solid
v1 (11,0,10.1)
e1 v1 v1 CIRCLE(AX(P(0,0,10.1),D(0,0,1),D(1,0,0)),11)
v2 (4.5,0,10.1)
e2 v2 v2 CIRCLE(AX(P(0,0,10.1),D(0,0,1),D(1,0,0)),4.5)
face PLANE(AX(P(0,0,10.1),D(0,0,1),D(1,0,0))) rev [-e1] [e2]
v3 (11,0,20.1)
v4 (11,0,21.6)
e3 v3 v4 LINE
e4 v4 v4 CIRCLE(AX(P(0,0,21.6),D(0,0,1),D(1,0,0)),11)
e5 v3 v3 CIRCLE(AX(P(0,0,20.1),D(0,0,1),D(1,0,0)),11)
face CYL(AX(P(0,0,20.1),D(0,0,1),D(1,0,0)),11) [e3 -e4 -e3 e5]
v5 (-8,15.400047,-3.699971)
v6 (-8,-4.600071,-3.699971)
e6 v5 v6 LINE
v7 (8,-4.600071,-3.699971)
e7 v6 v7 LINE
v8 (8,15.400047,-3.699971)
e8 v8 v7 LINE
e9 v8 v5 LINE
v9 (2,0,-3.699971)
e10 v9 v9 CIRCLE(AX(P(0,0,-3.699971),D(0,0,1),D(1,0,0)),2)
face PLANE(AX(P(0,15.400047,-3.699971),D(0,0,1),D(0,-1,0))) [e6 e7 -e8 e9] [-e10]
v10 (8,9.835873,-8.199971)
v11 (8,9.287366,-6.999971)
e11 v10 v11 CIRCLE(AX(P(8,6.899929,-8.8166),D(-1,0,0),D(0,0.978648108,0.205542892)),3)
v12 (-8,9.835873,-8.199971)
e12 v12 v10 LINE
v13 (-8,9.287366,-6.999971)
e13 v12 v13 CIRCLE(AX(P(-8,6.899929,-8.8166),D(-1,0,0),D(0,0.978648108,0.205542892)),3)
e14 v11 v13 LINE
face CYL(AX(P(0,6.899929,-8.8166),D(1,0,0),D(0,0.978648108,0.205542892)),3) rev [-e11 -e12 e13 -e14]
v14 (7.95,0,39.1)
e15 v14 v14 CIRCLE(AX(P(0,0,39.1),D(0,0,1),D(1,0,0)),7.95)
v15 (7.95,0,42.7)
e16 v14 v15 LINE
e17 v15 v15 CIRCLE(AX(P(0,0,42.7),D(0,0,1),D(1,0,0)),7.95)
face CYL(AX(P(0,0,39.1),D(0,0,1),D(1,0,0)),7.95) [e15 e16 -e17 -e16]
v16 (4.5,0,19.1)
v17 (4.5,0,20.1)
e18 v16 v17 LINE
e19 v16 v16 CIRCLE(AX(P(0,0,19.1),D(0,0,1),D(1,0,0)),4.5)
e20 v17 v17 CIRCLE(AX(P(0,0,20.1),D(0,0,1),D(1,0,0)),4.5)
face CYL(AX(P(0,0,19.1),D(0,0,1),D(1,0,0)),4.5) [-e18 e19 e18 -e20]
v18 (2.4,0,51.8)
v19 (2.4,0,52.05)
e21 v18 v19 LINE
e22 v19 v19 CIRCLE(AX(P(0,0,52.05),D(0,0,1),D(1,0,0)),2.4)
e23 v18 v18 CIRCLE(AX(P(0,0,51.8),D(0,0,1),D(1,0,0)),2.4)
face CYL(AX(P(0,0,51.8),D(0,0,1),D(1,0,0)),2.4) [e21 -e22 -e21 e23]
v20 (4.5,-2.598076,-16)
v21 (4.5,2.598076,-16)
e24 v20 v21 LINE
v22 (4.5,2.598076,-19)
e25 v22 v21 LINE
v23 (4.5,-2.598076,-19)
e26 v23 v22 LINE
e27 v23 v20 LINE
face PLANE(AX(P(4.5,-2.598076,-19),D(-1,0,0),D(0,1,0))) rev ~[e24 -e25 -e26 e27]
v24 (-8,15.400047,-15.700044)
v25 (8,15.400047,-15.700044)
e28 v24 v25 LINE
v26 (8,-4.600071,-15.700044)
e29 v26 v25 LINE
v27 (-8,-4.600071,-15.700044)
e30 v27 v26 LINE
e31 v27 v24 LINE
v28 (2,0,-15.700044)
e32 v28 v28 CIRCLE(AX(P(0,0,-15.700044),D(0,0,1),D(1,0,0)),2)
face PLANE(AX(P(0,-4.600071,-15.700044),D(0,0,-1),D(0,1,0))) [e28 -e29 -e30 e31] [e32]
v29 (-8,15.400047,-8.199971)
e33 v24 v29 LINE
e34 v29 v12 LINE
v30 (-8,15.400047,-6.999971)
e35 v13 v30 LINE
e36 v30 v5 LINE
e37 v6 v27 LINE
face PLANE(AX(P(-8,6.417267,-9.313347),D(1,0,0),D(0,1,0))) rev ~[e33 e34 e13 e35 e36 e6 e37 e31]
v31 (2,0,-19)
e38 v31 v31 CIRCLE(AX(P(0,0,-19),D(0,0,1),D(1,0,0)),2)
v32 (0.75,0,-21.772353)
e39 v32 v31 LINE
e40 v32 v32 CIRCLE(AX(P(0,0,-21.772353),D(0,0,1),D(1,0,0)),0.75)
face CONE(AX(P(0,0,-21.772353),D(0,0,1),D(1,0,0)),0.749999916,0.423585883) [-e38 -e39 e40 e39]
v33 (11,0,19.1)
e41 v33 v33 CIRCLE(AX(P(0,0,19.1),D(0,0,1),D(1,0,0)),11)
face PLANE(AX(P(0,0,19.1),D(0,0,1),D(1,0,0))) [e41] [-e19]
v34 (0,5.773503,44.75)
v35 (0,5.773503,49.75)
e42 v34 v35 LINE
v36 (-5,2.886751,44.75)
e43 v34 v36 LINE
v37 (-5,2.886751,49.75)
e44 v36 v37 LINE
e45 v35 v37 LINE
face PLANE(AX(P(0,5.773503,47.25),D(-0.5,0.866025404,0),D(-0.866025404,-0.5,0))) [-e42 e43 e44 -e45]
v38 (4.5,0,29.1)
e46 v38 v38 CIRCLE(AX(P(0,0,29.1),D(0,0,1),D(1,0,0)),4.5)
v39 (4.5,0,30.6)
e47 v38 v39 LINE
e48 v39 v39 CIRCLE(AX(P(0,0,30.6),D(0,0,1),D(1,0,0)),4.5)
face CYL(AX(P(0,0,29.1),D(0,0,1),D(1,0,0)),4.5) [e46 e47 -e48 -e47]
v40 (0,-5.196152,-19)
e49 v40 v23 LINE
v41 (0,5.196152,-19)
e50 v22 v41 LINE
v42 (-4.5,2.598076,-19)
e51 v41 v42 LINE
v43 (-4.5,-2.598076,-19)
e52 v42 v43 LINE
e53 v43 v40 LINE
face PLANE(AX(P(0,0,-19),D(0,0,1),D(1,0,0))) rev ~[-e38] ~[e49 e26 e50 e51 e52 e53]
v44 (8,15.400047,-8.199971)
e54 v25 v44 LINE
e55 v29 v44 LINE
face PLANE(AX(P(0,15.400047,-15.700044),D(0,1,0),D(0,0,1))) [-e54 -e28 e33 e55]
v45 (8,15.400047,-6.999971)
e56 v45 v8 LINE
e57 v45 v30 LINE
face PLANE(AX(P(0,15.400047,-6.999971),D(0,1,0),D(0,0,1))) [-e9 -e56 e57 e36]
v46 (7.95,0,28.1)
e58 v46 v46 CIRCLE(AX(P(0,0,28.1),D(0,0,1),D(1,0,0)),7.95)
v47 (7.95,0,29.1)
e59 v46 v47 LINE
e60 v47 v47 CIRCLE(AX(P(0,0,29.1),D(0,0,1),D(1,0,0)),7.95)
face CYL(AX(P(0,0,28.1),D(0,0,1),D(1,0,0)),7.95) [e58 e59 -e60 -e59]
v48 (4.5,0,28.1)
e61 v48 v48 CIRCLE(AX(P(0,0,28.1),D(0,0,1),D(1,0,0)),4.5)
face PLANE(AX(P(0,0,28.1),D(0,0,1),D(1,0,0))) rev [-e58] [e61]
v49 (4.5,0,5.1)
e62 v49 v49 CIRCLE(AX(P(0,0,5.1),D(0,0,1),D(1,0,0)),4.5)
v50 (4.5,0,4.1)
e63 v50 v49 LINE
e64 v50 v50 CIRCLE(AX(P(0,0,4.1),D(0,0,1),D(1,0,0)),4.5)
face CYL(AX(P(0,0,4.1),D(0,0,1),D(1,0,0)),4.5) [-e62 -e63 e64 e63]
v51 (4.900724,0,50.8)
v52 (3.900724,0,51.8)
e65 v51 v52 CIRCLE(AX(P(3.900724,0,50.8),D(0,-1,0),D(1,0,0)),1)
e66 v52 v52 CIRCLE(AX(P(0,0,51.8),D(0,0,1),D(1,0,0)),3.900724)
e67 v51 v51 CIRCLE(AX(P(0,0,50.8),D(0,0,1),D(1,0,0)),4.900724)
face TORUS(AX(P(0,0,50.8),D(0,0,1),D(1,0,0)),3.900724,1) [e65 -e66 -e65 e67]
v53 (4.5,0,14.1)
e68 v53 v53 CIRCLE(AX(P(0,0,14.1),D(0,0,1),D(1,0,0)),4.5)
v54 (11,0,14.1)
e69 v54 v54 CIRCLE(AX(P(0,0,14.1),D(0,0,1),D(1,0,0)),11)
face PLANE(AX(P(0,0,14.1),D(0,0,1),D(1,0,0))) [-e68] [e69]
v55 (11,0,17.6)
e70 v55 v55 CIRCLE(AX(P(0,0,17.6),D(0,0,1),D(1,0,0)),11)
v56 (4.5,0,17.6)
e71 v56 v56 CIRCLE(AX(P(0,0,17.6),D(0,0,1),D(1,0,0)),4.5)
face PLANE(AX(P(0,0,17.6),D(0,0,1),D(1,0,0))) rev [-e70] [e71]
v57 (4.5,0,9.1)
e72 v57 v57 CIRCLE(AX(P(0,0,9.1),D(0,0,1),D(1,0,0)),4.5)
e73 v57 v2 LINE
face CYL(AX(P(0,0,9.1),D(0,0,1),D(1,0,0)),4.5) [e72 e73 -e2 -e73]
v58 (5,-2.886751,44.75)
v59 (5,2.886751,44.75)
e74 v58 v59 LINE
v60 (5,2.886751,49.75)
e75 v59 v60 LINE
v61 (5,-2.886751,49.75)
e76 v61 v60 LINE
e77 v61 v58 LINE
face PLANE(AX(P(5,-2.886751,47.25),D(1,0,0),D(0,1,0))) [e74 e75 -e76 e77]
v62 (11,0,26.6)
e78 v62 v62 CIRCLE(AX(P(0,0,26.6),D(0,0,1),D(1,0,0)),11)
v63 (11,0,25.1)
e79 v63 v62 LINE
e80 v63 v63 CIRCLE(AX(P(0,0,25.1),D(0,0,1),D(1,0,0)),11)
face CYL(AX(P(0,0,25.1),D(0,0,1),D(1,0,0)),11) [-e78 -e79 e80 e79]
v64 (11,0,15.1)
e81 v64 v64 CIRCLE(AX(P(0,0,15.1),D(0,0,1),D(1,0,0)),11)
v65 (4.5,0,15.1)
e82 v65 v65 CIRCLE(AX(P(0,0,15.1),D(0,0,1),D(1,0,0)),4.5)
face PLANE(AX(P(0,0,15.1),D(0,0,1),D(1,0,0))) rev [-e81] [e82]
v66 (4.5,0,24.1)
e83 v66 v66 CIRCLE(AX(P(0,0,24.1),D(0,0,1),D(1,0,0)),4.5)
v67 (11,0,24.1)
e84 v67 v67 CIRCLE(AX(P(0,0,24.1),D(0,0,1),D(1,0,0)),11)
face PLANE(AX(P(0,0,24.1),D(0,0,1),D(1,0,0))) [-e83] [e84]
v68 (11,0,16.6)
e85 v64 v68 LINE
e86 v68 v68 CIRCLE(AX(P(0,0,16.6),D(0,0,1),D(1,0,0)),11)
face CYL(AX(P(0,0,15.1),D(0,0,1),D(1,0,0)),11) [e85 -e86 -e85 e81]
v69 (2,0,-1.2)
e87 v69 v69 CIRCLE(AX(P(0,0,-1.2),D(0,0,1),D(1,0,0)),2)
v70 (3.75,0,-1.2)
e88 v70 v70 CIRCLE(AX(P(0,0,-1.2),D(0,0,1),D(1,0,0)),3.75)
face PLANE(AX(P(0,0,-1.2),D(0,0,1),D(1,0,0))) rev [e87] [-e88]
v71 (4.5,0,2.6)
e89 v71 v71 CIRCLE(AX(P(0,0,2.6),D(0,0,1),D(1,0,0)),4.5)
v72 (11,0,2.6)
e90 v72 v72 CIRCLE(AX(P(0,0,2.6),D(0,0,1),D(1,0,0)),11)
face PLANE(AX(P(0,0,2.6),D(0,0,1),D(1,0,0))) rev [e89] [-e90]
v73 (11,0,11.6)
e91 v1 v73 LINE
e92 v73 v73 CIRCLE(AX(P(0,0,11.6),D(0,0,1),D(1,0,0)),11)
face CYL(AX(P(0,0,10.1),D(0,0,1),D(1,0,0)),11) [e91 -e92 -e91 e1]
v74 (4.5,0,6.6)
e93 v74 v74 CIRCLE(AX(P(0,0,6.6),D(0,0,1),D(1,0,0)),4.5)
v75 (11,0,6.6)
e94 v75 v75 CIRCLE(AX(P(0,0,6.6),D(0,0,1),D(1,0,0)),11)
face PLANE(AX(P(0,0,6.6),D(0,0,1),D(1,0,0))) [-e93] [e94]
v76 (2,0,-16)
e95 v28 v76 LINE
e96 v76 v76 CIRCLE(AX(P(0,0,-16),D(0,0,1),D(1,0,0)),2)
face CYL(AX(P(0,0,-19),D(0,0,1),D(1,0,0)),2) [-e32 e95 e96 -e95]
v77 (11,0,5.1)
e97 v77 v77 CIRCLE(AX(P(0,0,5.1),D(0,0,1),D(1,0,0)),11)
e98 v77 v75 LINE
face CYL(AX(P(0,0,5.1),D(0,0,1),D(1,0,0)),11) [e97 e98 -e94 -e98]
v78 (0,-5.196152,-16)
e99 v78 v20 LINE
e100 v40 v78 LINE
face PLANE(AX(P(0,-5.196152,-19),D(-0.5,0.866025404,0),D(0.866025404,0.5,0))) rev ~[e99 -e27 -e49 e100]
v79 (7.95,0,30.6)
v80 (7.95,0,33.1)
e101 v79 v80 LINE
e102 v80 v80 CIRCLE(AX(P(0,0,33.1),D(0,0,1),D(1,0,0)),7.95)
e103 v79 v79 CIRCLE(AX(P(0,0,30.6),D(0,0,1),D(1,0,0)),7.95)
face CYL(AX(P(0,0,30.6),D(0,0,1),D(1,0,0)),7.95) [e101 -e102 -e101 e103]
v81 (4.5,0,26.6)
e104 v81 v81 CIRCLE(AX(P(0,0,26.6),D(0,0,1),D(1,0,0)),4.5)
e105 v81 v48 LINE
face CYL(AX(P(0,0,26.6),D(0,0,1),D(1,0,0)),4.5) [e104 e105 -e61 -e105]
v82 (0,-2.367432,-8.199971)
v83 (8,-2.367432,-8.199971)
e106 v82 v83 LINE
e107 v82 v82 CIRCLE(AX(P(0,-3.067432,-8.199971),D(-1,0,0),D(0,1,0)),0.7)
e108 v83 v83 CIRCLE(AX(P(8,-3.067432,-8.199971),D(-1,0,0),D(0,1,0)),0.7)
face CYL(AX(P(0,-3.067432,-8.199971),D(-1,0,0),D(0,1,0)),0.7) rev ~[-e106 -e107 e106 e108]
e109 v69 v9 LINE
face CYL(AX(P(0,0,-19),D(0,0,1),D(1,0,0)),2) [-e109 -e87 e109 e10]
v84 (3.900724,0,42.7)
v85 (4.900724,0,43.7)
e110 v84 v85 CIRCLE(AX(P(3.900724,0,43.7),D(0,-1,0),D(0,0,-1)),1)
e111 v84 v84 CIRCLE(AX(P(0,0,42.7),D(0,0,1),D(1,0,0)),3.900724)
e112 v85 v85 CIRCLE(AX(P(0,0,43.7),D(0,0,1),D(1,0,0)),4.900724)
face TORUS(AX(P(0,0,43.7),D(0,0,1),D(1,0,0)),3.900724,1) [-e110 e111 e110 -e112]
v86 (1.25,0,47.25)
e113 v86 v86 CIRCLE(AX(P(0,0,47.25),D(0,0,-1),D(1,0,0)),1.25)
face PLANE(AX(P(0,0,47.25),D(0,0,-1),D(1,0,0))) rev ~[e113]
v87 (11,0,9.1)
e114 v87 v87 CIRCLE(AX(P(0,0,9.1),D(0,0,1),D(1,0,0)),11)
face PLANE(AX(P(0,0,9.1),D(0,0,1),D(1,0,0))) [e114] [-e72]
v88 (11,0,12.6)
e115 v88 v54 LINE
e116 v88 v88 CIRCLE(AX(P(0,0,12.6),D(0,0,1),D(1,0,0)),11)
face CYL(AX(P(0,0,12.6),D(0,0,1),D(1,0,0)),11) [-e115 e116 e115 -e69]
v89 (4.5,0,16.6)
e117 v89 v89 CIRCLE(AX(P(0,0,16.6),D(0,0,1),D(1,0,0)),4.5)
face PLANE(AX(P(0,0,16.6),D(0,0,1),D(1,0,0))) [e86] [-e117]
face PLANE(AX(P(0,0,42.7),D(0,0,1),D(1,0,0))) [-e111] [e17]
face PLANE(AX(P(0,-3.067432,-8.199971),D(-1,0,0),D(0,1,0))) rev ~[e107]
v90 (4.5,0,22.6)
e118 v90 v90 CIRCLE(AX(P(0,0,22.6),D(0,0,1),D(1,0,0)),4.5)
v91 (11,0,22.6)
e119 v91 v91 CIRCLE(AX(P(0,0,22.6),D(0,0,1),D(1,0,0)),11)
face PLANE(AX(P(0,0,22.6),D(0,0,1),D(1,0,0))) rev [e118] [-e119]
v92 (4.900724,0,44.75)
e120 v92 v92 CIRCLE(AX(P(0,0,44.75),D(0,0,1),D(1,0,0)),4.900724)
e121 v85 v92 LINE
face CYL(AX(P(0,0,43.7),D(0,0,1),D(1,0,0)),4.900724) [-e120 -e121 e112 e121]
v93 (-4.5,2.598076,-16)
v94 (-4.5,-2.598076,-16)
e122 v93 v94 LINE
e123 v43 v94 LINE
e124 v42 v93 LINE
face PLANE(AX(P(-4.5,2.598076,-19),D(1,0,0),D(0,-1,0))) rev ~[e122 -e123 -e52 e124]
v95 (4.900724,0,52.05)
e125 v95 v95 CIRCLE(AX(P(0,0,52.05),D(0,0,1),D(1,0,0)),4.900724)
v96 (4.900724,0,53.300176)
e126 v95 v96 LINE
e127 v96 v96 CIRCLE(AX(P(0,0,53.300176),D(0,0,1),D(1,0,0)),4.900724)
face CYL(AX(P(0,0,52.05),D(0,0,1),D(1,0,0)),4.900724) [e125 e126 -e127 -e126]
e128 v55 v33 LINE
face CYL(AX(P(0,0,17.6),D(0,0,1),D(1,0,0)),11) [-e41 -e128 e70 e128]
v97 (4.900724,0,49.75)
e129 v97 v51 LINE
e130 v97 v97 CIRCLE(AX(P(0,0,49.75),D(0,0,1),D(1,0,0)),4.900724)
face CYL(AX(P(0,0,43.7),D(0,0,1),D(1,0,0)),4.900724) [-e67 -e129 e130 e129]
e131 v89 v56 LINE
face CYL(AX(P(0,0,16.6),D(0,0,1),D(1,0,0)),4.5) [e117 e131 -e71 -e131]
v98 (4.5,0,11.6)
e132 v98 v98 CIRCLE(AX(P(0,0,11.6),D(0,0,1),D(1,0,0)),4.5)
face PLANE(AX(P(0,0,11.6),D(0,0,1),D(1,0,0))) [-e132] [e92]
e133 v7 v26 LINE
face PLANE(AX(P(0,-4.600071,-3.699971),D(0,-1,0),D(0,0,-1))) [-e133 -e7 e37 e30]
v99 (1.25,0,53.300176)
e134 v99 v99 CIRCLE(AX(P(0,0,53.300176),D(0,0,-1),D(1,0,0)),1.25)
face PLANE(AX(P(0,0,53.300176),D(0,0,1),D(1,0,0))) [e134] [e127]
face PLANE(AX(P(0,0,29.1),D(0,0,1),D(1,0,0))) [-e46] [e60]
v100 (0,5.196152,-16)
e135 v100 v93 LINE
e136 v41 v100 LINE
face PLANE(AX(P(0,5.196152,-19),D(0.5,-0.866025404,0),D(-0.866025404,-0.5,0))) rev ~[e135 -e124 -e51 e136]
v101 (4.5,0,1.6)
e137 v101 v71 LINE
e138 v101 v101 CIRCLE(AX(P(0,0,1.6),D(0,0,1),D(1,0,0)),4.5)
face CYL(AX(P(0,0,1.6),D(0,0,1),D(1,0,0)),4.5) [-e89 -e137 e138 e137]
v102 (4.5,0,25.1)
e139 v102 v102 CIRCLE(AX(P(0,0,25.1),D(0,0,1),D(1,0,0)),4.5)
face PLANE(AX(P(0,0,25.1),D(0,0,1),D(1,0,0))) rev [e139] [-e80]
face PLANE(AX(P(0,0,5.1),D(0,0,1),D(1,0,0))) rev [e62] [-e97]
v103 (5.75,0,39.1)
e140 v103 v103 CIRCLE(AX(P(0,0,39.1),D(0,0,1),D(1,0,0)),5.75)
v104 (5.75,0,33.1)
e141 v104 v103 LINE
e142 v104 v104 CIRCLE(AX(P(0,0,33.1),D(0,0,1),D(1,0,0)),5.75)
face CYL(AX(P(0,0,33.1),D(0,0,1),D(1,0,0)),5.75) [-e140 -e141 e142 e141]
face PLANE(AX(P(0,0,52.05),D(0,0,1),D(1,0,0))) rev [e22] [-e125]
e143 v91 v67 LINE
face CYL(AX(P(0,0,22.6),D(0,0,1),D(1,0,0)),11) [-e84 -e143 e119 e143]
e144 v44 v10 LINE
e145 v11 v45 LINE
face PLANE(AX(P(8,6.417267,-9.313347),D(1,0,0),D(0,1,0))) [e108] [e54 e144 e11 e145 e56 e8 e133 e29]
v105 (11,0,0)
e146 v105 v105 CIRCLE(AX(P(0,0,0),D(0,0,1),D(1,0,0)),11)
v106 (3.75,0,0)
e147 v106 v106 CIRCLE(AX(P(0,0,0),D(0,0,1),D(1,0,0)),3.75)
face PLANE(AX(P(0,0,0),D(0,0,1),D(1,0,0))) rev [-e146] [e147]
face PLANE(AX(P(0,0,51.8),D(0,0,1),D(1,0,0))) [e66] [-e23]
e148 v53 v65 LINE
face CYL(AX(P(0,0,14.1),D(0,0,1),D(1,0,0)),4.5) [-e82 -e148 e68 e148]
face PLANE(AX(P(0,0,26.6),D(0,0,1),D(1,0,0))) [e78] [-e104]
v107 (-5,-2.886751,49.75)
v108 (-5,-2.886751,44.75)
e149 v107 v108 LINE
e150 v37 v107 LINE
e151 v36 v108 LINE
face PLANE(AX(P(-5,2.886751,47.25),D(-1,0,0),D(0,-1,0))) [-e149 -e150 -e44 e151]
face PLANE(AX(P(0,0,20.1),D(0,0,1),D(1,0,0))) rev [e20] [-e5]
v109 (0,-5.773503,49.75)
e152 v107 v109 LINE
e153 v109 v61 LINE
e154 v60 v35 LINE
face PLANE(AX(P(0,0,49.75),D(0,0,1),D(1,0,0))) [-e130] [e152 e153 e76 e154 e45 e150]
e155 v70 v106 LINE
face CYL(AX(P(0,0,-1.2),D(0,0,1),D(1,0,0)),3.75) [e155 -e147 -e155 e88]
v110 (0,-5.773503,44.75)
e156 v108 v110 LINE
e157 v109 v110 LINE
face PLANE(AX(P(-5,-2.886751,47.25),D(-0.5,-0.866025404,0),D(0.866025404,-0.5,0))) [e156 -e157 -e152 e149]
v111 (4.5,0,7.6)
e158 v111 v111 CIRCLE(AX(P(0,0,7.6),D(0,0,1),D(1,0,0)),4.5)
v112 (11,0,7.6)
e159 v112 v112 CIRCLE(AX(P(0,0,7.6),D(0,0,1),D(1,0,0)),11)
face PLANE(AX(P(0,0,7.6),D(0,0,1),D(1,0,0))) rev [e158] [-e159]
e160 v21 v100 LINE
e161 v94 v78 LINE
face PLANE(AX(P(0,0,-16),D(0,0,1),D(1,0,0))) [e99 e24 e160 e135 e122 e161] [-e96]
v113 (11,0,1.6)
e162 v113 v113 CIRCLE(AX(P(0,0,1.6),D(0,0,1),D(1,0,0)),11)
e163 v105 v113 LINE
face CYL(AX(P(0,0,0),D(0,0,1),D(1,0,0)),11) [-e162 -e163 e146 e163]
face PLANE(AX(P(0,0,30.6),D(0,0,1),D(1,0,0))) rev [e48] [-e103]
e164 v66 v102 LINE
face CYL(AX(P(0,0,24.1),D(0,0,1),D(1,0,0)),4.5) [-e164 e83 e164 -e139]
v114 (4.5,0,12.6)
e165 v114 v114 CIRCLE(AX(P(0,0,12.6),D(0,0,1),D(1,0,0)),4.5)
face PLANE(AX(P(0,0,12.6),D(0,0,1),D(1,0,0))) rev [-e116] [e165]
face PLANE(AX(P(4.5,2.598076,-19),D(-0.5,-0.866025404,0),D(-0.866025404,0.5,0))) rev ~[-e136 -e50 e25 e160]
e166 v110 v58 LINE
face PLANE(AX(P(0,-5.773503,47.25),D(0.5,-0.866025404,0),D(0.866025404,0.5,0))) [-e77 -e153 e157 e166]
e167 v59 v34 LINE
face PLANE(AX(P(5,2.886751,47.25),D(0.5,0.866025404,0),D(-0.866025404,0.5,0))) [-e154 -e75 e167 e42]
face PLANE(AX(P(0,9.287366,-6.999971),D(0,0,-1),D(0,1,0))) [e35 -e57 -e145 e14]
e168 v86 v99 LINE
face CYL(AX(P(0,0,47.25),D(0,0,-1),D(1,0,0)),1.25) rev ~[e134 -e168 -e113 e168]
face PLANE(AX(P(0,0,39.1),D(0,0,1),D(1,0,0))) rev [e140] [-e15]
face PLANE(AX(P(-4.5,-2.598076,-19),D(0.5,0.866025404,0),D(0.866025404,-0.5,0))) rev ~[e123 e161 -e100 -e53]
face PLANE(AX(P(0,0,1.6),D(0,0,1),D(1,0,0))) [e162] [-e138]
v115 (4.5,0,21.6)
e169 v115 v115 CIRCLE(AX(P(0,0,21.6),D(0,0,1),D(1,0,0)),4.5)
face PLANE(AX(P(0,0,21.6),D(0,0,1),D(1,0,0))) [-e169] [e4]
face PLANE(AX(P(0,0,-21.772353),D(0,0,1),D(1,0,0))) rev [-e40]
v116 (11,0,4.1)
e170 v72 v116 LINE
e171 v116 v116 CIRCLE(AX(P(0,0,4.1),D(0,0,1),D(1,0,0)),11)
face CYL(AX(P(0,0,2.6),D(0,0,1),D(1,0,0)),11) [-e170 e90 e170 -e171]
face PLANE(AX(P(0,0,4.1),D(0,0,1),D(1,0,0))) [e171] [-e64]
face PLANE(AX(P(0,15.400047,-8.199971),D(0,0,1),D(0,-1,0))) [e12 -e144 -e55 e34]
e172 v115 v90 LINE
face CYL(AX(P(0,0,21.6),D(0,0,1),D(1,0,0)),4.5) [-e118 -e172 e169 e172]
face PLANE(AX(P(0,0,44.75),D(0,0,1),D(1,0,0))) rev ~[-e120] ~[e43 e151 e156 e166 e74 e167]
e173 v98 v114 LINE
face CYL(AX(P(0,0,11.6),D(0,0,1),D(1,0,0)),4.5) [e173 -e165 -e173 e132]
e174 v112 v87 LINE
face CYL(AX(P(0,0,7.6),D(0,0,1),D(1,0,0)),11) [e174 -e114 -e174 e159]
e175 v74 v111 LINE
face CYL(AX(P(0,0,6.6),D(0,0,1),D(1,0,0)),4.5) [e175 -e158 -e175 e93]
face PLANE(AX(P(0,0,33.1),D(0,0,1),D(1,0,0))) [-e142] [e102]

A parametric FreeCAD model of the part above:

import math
import FreeCAD as App
import Part
import Sketcher
Q = App.Units.Quantity

doc = App.newDocument("Part")
params = doc.addObject("Spreadsheet::Sheet", "Params")
for row, (alias, value) in enumerate([
    ("sketch1_radius", "1 mm"),
    ("sketch1_height", "1 mm"),
    ("sketch1_height2", "6 mm"),
    ("sketch1_width", "6.5 mm"),
    ("sketch1_width2", "2.2 mm"),
    ("revolution_angle", "360 deg"),
    ("sketch2_diameter", "4 mm"),
    ("sketch2_diameter2", "7.5 mm"),
    ("pad1_length", "1.2 mm"),
    ("sketch3_diameter", "4 mm"),
    ("pad2_length", "3.7 mm"),
    ("pad3_length", "3 mm"),
    ("pad4_length", "5 mm"),
    ("sketch6_radius", "3 mm"),
    ("sketch6_height", "3.3 mm"),
    ("pad5_length", "16 mm"),
    ("sketch7_diameter", "2.5 mm"),
    ("sketch8_diameter", "1.4 mm"),
], start=1):
    params.set(f"A{row}", alias)
    params.set(f"B{row}", "=" + value)
    params.setAlias(f"B{row}", alias)

body = doc.addObject("PartDesign::Body", "Body")

# Sketch on XZ plane
sketch1 = doc.addObject("Sketcher::SketchObject", "Sketch")
body.addObject(sketch1)
sketch1.AttachmentSupport = (doc.XZ_Plane, [""])
sketch1.MapMode = "FlatFace"
sketch1.addGeometry([
    Part.LineSegment(App.Vector(0, 0, 0), App.Vector(0, -21.772353, 0)),  # 0
    Part.LineSegment(App.Vector(0, -21.772353, 0), App.Vector(0.75, -21.772353, 0)),  # 1
    Part.LineSegment(App.Vector(0.75, -21.772353, 0), App.Vector(2, -19, 0)),  # 2
    Part.LineSegment(App.Vector(2, -19, 0), App.Vector(2, -1.2, 0)),  # 3
    Part.LineSegment(App.Vector(2, -1.2, 0), App.Vector(3.75, -1.2, 0)),  # 4
    Part.LineSegment(App.Vector(3.75, -1.2, 0), App.Vector(3.75, 0, 0)),  # 5
    Part.LineSegment(App.Vector(3.75, 0, 0), App.Vector(11, 0, 0)),  # 6
    Part.LineSegment(App.Vector(11, 0, 0), App.Vector(11, 1.6, 0)),  # 7
    Part.LineSegment(App.Vector(11, 1.6, 0), App.Vector(4.5, 1.6, 0)),  # 8
    Part.LineSegment(App.Vector(4.5, 1.6, 0), App.Vector(4.5, 2.6, 0)),  # 9
    Part.LineSegment(App.Vector(4.5, 2.6, 0), App.Vector(11, 2.6, 0)),  # 10
    Part.LineSegment(App.Vector(11, 2.6, 0), App.Vector(11, 4.1, 0)),  # 11
    Part.LineSegment(App.Vector(11, 4.1, 0), App.Vector(4.5, 4.1, 0)),  # 12
    Part.LineSegment(App.Vector(4.5, 4.1, 0), App.Vector(4.5, 5.1, 0)),  # 13
    Part.LineSegment(App.Vector(4.5, 5.1, 0), App.Vector(11, 5.1, 0)),  # 14
    Part.LineSegment(App.Vector(11, 5.1, 0), App.Vector(11, 6.6, 0)),  # 15
    Part.LineSegment(App.Vector(11, 6.6, 0), App.Vector(4.5, 6.6, 0)),  # 16
    Part.LineSegment(App.Vector(4.5, 6.6, 0), App.Vector(4.5, 7.6, 0)),  # 17
    Part.LineSegment(App.Vector(4.5, 7.6, 0), App.Vector(11, 7.6, 0)),  # 18
    Part.LineSegment(App.Vector(11, 7.6, 0), App.Vector(11, 9.1, 0)),  # 19
    Part.LineSegment(App.Vector(11, 9.1, 0), App.Vector(4.5, 9.1, 0)),  # 20
    Part.LineSegment(App.Vector(4.5, 9.1, 0), App.Vector(4.5, 10.1, 0)),  # 21
    Part.LineSegment(App.Vector(4.5, 10.1, 0), App.Vector(11, 10.1, 0)),  # 22
    Part.LineSegment(App.Vector(11, 10.1, 0), App.Vector(11, 11.6, 0)),  # 23
    Part.LineSegment(App.Vector(11, 11.6, 0), App.Vector(4.5, 11.6, 0)),  # 24
    Part.LineSegment(App.Vector(4.5, 11.6, 0), App.Vector(4.5, 12.6, 0)),  # 25
    Part.LineSegment(App.Vector(4.5, 12.6, 0), App.Vector(11, 12.6, 0)),  # 26
    Part.LineSegment(App.Vector(11, 12.6, 0), App.Vector(11, 14.1, 0)),  # 27
    Part.LineSegment(App.Vector(11, 14.1, 0), App.Vector(4.5, 14.1, 0)),  # 28
    Part.LineSegment(App.Vector(4.5, 14.1, 0), App.Vector(4.5, 15.1, 0)),  # 29
    Part.LineSegment(App.Vector(4.5, 15.1, 0), App.Vector(11, 15.1, 0)),  # 30
    Part.LineSegment(App.Vector(11, 15.1, 0), App.Vector(11, 16.6, 0)),  # 31
    Part.LineSegment(App.Vector(11, 16.6, 0), App.Vector(4.5, 16.6, 0)),  # 32
    Part.LineSegment(App.Vector(4.5, 16.6, 0), App.Vector(4.5, 17.6, 0)),  # 33
    Part.LineSegment(App.Vector(4.5, 17.6, 0), App.Vector(11, 17.6, 0)),  # 34
    Part.LineSegment(App.Vector(11, 17.6, 0), App.Vector(11, 19.1, 0)),  # 35
    Part.LineSegment(App.Vector(11, 19.1, 0), App.Vector(4.5, 19.1, 0)),  # 36
    Part.LineSegment(App.Vector(4.5, 19.1, 0), App.Vector(4.5, 20.1, 0)),  # 37
    Part.LineSegment(App.Vector(4.5, 20.1, 0), App.Vector(11, 20.1, 0)),  # 38
    Part.LineSegment(App.Vector(11, 20.1, 0), App.Vector(11, 21.6, 0)),  # 39
    Part.LineSegment(App.Vector(11, 21.6, 0), App.Vector(4.5, 21.6, 0)),  # 40
    Part.LineSegment(App.Vector(4.5, 21.6, 0), App.Vector(4.5, 22.6, 0)),  # 41
    Part.LineSegment(App.Vector(4.5, 22.6, 0), App.Vector(11, 22.6, 0)),  # 42
    Part.LineSegment(App.Vector(11, 22.6, 0), App.Vector(11, 24.1, 0)),  # 43
    Part.LineSegment(App.Vector(11, 24.1, 0), App.Vector(4.5, 24.1, 0)),  # 44
    Part.LineSegment(App.Vector(4.5, 24.1, 0), App.Vector(4.5, 25.1, 0)),  # 45
    Part.LineSegment(App.Vector(4.5, 25.1, 0), App.Vector(11, 25.1, 0)),  # 46
    Part.LineSegment(App.Vector(11, 25.1, 0), App.Vector(11, 26.6, 0)),  # 47
    Part.LineSegment(App.Vector(11, 26.6, 0), App.Vector(4.5, 26.6, 0)),  # 48
    Part.LineSegment(App.Vector(4.5, 26.6, 0), App.Vector(4.5, 28.1, 0)),  # 49
    Part.LineSegment(App.Vector(4.5, 28.1, 0), App.Vector(7.95, 28.1, 0)),  # 50
    Part.LineSegment(App.Vector(7.95, 28.1, 0), App.Vector(7.95, 29.1, 0)),  # 51
    Part.LineSegment(App.Vector(7.95, 29.1, 0), App.Vector(4.5, 29.1, 0)),  # 52
    Part.LineSegment(App.Vector(4.5, 29.1, 0), App.Vector(4.5, 30.6, 0)),  # 53
    Part.LineSegment(App.Vector(4.5, 30.6, 0), App.Vector(7.95, 30.6, 0)),  # 54
    Part.LineSegment(App.Vector(7.95, 30.6, 0), App.Vector(7.95, 33.1, 0)),  # 55
    Part.LineSegment(App.Vector(7.95, 33.1, 0), App.Vector(5.75, 33.1, 0)),  # 56
    Part.LineSegment(App.Vector(5.75, 33.1, 0), App.Vector(5.75, 39.1, 0)),  # 57
    Part.LineSegment(App.Vector(5.75, 39.1, 0), App.Vector(7.95, 39.1, 0)),  # 58
    Part.LineSegment(App.Vector(7.95, 39.1, 0), App.Vector(7.95, 42.7, 0)),  # 59
    Part.LineSegment(App.Vector(7.95, 42.7, 0), App.Vector(3.900724, 42.7, 0)),  # 60
    Part.ArcOfCircle(Part.Circle(App.Vector(3.900724, 43.7, 0), App.Vector(0, 0, 1), 1), math.radians(-90), math.radians(0)),  # 61
    Part.LineSegment(App.Vector(4.900724, 43.7, 0), App.Vector(4.900724, 50.8, 0)),  # 62
    Part.ArcOfCircle(Part.Circle(App.Vector(3.900724, 50.8, 0), App.Vector(0, 0, 1), 1), math.radians(0), math.radians(90)),  # 63
    Part.LineSegment(App.Vector(3.900724, 51.8, 0), App.Vector(2.4, 51.8, 0)),  # 64
    Part.LineSegment(App.Vector(2.4, 51.8, 0), App.Vector(2.4, 52.05, 0)),  # 65
    Part.LineSegment(App.Vector(2.4, 52.05, 0), App.Vector(4.900724, 52.05, 0)),  # 66
    Part.LineSegment(App.Vector(4.900724, 52.05, 0), App.Vector(4.900724, 53.300176, 0)),  # 67
    Part.LineSegment(App.Vector(4.900724, 53.300176, 0), App.Vector(0, 53.300176, 0)),  # 68
    Part.LineSegment(App.Vector(0, 53.300176, 0), App.Vector(0, 0, 0)),  # 69
], False)
sketch1.addConstraint([
    Sketcher.Constraint("Coincident", 0, 2, 1, 1),
    Sketcher.Constraint("Coincident", 1, 2, 2, 1),
    Sketcher.Constraint("Coincident", 2, 2, 3, 1),
    Sketcher.Constraint("Coincident", 3, 2, 4, 1),
    Sketcher.Constraint("Coincident", 4, 2, 5, 1),
    Sketcher.Constraint("Coincident", 5, 2, 6, 1),
    Sketcher.Constraint("Coincident", 6, 2, 7, 1),
    Sketcher.Constraint("Coincident", 7, 2, 8, 1),
    Sketcher.Constraint("Coincident", 8, 2, 9, 1),
    Sketcher.Constraint("Coincident", 9, 2, 10, 1),
    Sketcher.Constraint("Coincident", 10, 2, 11, 1),
    Sketcher.Constraint("Coincident", 11, 2, 12, 1),
    Sketcher.Constraint("Coincident", 12, 2, 13, 1),
    Sketcher.Constraint("Coincident", 13, 2, 14, 1),
    Sketcher.Constraint("Coincident", 14, 2, 15, 1),
    Sketcher.Constraint("Coincident", 15, 2, 16, 1),
    Sketcher.Constraint("Coincident", 16, 2, 17, 1),
    Sketcher.Constraint("Coincident", 17, 2, 18, 1),
    Sketcher.Constraint("Coincident", 18, 2, 19, 1),
    Sketcher.Constraint("Coincident", 19, 2, 20, 1),
    Sketcher.Constraint("Coincident", 20, 2, 21, 1),
    Sketcher.Constraint("Coincident", 21, 2, 22, 1),
    Sketcher.Constraint("Coincident", 22, 2, 23, 1),
    Sketcher.Constraint("Coincident", 23, 2, 24, 1),
    Sketcher.Constraint("Coincident", 24, 2, 25, 1),
    Sketcher.Constraint("Coincident", 25, 2, 26, 1),
    Sketcher.Constraint("Coincident", 26, 2, 27, 1),
    Sketcher.Constraint("Coincident", 27, 2, 28, 1),
    Sketcher.Constraint("Coincident", 28, 2, 29, 1),
    Sketcher.Constraint("Coincident", 29, 2, 30, 1),
    Sketcher.Constraint("Coincident", 30, 2, 31, 1),
    Sketcher.Constraint("Coincident", 31, 2, 32, 1),
    Sketcher.Constraint("Coincident", 32, 2, 33, 1),
    Sketcher.Constraint("Coincident", 33, 2, 34, 1),
    Sketcher.Constraint("Coincident", 34, 2, 35, 1),
    Sketcher.Constraint("Coincident", 35, 2, 36, 1),
    Sketcher.Constraint("Coincident", 36, 2, 37, 1),
    Sketcher.Constraint("Coincident", 37, 2, 38, 1),
    Sketcher.Constraint("Coincident", 38, 2, 39, 1),
    Sketcher.Constraint("Coincident", 39, 2, 40, 1),
    Sketcher.Constraint("Coincident", 40, 2, 41, 1),
    Sketcher.Constraint("Coincident", 41, 2, 42, 1),
    Sketcher.Constraint("Coincident", 42, 2, 43, 1),
    Sketcher.Constraint("Coincident", 43, 2, 44, 1),
    Sketcher.Constraint("Coincident", 44, 2, 45, 1),
    Sketcher.Constraint("Coincident", 45, 2, 46, 1),
    Sketcher.Constraint("Coincident", 46, 2, 47, 1),
    Sketcher.Constraint("Coincident", 47, 2, 48, 1),
    Sketcher.Constraint("Coincident", 48, 2, 49, 1),
    Sketcher.Constraint("Coincident", 49, 2, 50, 1),
    Sketcher.Constraint("Coincident", 50, 2, 51, 1),
    Sketcher.Constraint("Coincident", 51, 2, 52, 1),
    Sketcher.Constraint("Coincident", 52, 2, 53, 1),
    Sketcher.Constraint("Coincident", 53, 2, 54, 1),
    Sketcher.Constraint("Coincident", 54, 2, 55, 1),
    Sketcher.Constraint("Coincident", 55, 2, 56, 1),
    Sketcher.Constraint("Coincident", 56, 2, 57, 1),
    Sketcher.Constraint("Coincident", 57, 2, 58, 1),
    Sketcher.Constraint("Coincident", 58, 2, 59, 1),
    Sketcher.Constraint("Coincident", 59, 2, 60, 1),
    Sketcher.Constraint("Tangent", 60, 2, 61, 1),
    Sketcher.Constraint("Tangent", 61, 2, 62, 1),
    Sketcher.Constraint("Tangent", 62, 2, 63, 1),
    Sketcher.Constraint("Tangent", 63, 2, 64, 1),
    Sketcher.Constraint("Coincident", 64, 2, 65, 1),
    Sketcher.Constraint("Coincident", 65, 2, 66, 1),
    Sketcher.Constraint("Coincident", 66, 2, 67, 1),
    Sketcher.Constraint("Coincident", 67, 2, 68, 1),
    Sketcher.Constraint("Coincident", 68, 2, 69, 1),
    Sketcher.Constraint("Coincident", 69, 2, 0, 1),
    Sketcher.Constraint("Vertical", 0),
    Sketcher.Constraint("Horizontal", 1),
    Sketcher.Constraint("Vertical", 3),
    Sketcher.Constraint("Horizontal", 4),
    Sketcher.Constraint("Vertical", 5),
    Sketcher.Constraint("Horizontal", 6),
    Sketcher.Constraint("Vertical", 7),
    Sketcher.Constraint("Horizontal", 8),
    Sketcher.Constraint("Vertical", 9),
    Sketcher.Constraint("Horizontal", 10),
    Sketcher.Constraint("Vertical", 11),
    Sketcher.Constraint("Horizontal", 12),
    Sketcher.Constraint("Vertical", 13),
    Sketcher.Constraint("Horizontal", 14),
    Sketcher.Constraint("Vertical", 15),
    Sketcher.Constraint("Horizontal", 16),
    Sketcher.Constraint("Vertical", 17),
    Sketcher.Constraint("Horizontal", 18),
    Sketcher.Constraint("Vertical", 19),
    Sketcher.Constraint("Horizontal", 20),
    Sketcher.Constraint("Vertical", 21),
    Sketcher.Constraint("Horizontal", 22),
    Sketcher.Constraint("Vertical", 23),
    Sketcher.Constraint("Horizontal", 24),
    Sketcher.Constraint("Vertical", 25),
    Sketcher.Constraint("Horizontal", 26),
    Sketcher.Constraint("Vertical", 27),
    Sketcher.Constraint("Horizontal", 28),
    Sketcher.Constraint("Vertical", 29),
    Sketcher.Constraint("Horizontal", 30),
    Sketcher.Constraint("Vertical", 31),
    Sketcher.Constraint("Horizontal", 32),
    Sketcher.Constraint("Vertical", 33),
    Sketcher.Constraint("Horizontal", 34),
    Sketcher.Constraint("Vertical", 35),
    Sketcher.Constraint("Horizontal", 36),
    Sketcher.Constraint("Vertical", 37),
    Sketcher.Constraint("Horizontal", 38),
    Sketcher.Constraint("Vertical", 39),
    Sketcher.Constraint("Horizontal", 40),
    Sketcher.Constraint("Vertical", 41),
    Sketcher.Constraint("Horizontal", 42),
    Sketcher.Constraint("Vertical", 43),
    Sketcher.Constraint("Horizontal", 44),
    Sketcher.Constraint("Vertical", 45),
    Sketcher.Constraint("Horizontal", 46),
    Sketcher.Constraint("Vertical", 47),
    Sketcher.Constraint("Horizontal", 48),
    Sketcher.Constraint("Vertical", 49),
    Sketcher.Constraint("Horizontal", 50),
    Sketcher.Constraint("Vertical", 51),
    Sketcher.Constraint("Horizontal", 52),
    Sketcher.Constraint("Vertical", 53),
    Sketcher.Constraint("Horizontal", 54),
    Sketcher.Constraint("Vertical", 55),
    Sketcher.Constraint("Horizontal", 56),
    Sketcher.Constraint("Vertical", 57),
    Sketcher.Constraint("Horizontal", 58),
    Sketcher.Constraint("Vertical", 59),
    Sketcher.Constraint("Horizontal", 60),
    Sketcher.Constraint("Vertical", 62),
    Sketcher.Constraint("Horizontal", 64),
    Sketcher.Constraint("Vertical", 65),
    Sketcher.Constraint("Horizontal", 66),
    Sketcher.Constraint("Vertical", 67),
    Sketcher.Constraint("Horizontal", 68),
    Sketcher.Constraint("Vertical", 69),
    Sketcher.Constraint("Coincident", 69, 2, -1, 1),
    Sketcher.Constraint("Equal", 61, 63),
    Sketcher.Constraint("PointOnObject", 5, 2, -1),
    Sketcher.Constraint("Vertical", 7, 2, 10, 2),
    Sketcher.Constraint("Vertical", 9, 2, 12, 2),
    Sketcher.Constraint("Vertical", 11, 2, 14, 2),
    Sketcher.Constraint("Vertical", 13, 2, 16, 2),
    Sketcher.Constraint("Vertical", 15, 2, 18, 2),
    Sketcher.Constraint("Vertical", 17, 2, 20, 2),
    Sketcher.Constraint("Vertical", 19, 2, 22, 2),
    Sketcher.Constraint("Vertical", 21, 2, 24, 2),
    Sketcher.Constraint("Vertical", 23, 2, 26, 2),
    Sketcher.Constraint("Vertical", 25, 2, 28, 2),
    Sketcher.Constraint("Vertical", 27, 2, 30, 2),
    Sketcher.Constraint("Vertical", 29, 2, 32, 2),
    Sketcher.Constraint("Vertical", 31, 2, 34, 2),
    Sketcher.Constraint("Vertical", 33, 2, 36, 2),
    Sketcher.Constraint("Vertical", 35, 2, 38, 2),
    Sketcher.Constraint("Vertical", 37, 2, 40, 2),
    Sketcher.Constraint("Vertical", 39, 2, 42, 2),
    Sketcher.Constraint("Vertical", 41, 2, 44, 2),
    Sketcher.Constraint("Vertical", 43, 2, 46, 2),
    Sketcher.Constraint("Vertical", 45, 2, 48, 2),
    Sketcher.Constraint("Vertical", 49, 2, 52, 2),
    Sketcher.Constraint("Vertical", 51, 2, 54, 2),
    Sketcher.Constraint("Vertical", 55, 2, 58, 2),
    Sketcher.Constraint("Vertical", 62, 2, 66, 2),
    Sketcher.Constraint("Equal", 9, 13),
    Sketcher.Constraint("Equal", 11, 15),
    Sketcher.Constraint("Equal", 13, 17),
    Sketcher.Constraint("Equal", 15, 19),
    Sketcher.Constraint("Equal", 17, 21),
    Sketcher.Constraint("Equal", 19, 23),
    Sketcher.Constraint("Equal", 21, 25),
    Sketcher.Constraint("Equal", 23, 27),
    Sketcher.Constraint("Equal", 25, 29),
    Sketcher.Constraint("Equal", 27, 31),
    Sketcher.Constraint("Equal", 29, 33),
    Sketcher.Constraint("Equal", 31, 35),
    Sketcher.Constraint("Equal", 33, 37),
    Sketcher.Constraint("Equal", 35, 39),
    Sketcher.Constraint("Equal", 37, 41),
    Sketcher.Constraint("Equal", 39, 43),
    Sketcher.Constraint("Equal", 41, 45),
    Sketcher.Constraint("Equal", 43, 47),
    Sketcher.Constraint("Equal", 47, 49),
    Sketcher.Constraint("Equal", 45, 51),
    Sketcher.Constraint("Equal", 49, 53),
    Sketcher.Constraint("Radius", 61, 1.0),
    Sketcher.Constraint("DistanceY", 9, 1, 9, 2, 1.0),
    Sketcher.Constraint("DistanceY", 57, 1, 57, 2, 6.0),
    Sketcher.Constraint("DistanceX", 8, 2, 8, 1, 6.5),
    Sketcher.Constraint("DistanceX", 56, 2, 56, 1, 2.2),
    Sketcher.Constraint("DistanceY", 3, 1, 3, 2, 17.8),
    Sketcher.Constraint("DistanceY", 5, 1, 5, 2, 1.2),
    Sketcher.Constraint("DistanceY", 7, 1, 7, 2, 1.6),
    Sketcher.Constraint("DistanceY", 11, 1, 11, 2, 1.5),
    Sketcher.Constraint("DistanceY", 55, 1, 55, 2, 2.5),
    Sketcher.Constraint("DistanceY", 59, 1, 59, 2, 3.6),
    Sketcher.Constraint("DistanceY", 62, 1, 62, 2, 7.1),
    Sketcher.Constraint("DistanceX", -1, 1, 2, 2, 2.0),
    Sketcher.Constraint("DistanceX", -1, 1, 6, 2, 11.0),
    Sketcher.Constraint("DistanceX", 1, 1, 1, 2, 0.75),
    Sketcher.Constraint("DistanceX", 4, 1, 4, 2, 1.75),
    Sketcher.Constraint("DistanceX", 50, 1, 50, 2, 3.45),
    Sketcher.Constraint("DistanceY", 65, 1, 65, 2, 0.25),
    Sketcher.Constraint("DistanceX", -1, 1, 64, 2, 2.4),
    Sketcher.Constraint("DistanceX", 60, 2, 60, 1, 4.049276),
    Sketcher.Constraint("DistanceY", 0, 2, 0, 1, 21.772353),
    Sketcher.Constraint("DistanceY", 67, 1, 67, 2, 1.250176),
])
sketch1.setExpression("Constraints[185]", "Params.sketch1_radius")
sketch1.setExpression("Constraints[186]", "Params.sketch1_height")
sketch1.setExpression("Constraints[187]", "Params.sketch1_height2")
sketch1.setExpression("Constraints[188]", "Params.sketch1_width")
sketch1.setExpression("Constraints[189]", "Params.sketch1_width2")
revolution = doc.addObject("PartDesign::Revolution", "Revolution")
body.addObject(revolution)
revolution.Profile = sketch1
revolution.ReferenceAxis = (sketch1, ["V_Axis"])
revolution.setExpression("Angle", "Params.revolution_angle")

# Sketch on XY plane
sketch2 = doc.addObject("Sketcher::SketchObject", "Sketch001")
body.addObject(sketch2)
sketch2.AttachmentSupport = (doc.XY_Plane, [""])
sketch2.MapMode = "FlatFace"
sketch2.addGeometry([
    Part.Circle(App.Vector(0, 0, 0), App.Vector(0, 0, 1), 3.75),
    Part.Circle(App.Vector(0, 0, 0), App.Vector(0, 0, 1), 2),
], False)
sketch2.addConstraint([
    Sketcher.Constraint("Coincident", 0, 3, -1, 1),
    Sketcher.Constraint("Coincident", 1, 3, -1, 1),
    Sketcher.Constraint("Diameter", 1, 4.0),
    Sketcher.Constraint("Diameter", 0, 7.5),
])
sketch2.setExpression("Constraints[2]", "Params.sketch2_diameter")
sketch2.setExpression("Constraints[3]", "Params.sketch2_diameter2")
pad1 = doc.addObject("PartDesign::Pad", "Pad")
body.addObject(pad1)
pad1.Profile = sketch2
pad1.setExpression("Length", "Params.pad1_length")
pad1.Reversed = True

# Sketch on XY plane
sketch3 = doc.addObject("Sketcher::SketchObject", "Sketch002")
body.addObject(sketch3)
sketch3.AttachmentSupport = (doc.XY_Plane, [""])
sketch3.MapMode = "FlatFace"
sketch3.addGeometry(Part.Circle(App.Vector(0, 0, 0), App.Vector(0, 0, 1), 2), False)
sketch3.addConstraint([
    Sketcher.Constraint("Coincident", 0, 3, -1, 1),
    Sketcher.Constraint("Diameter", 0, 4.0),
])
sketch3.setExpression("Constraints[1]", "Params.sketch3_diameter")
pad2 = doc.addObject("PartDesign::Pad", "Pad001")
body.addObject(pad2)
pad2.Profile = sketch3
pad2.setExpression("Length", "Params.pad2_length")
pad2.Reversed = True

# Sketch on XY plane
sketch4 = doc.addObject("Sketcher::SketchObject", "Sketch003")
body.addObject(sketch4)
sketch4.AttachmentSupport = (doc.XY_Plane, [""])
sketch4.MapMode = "FlatFace"
sketch4.AttachmentOffset = App.Placement(App.Vector(0, 0, -19), App.Rotation())
sketch4.addGeometry([
    Part.LineSegment(App.Vector(4.5, -2.598076, 0), App.Vector(4.5, 2.598076, 0)),  # 0
    Part.LineSegment(App.Vector(4.5, 2.598076, 0), App.Vector(0, 5.196152, 0)),  # 1
    Part.LineSegment(App.Vector(0, 5.196152, 0), App.Vector(-4.5, 2.598076, 0)),  # 2
    Part.LineSegment(App.Vector(-4.5, 2.598076, 0), App.Vector(-4.5, -2.598076, 0)),  # 3
    Part.LineSegment(App.Vector(-4.5, -2.598076, 0), App.Vector(0, -5.196152, 0)),  # 4
    Part.LineSegment(App.Vector(0, -5.196152, 0), App.Vector(4.5, -2.598076, 0)),  # 5
], False)
sketch4.addConstraint([
    Sketcher.Constraint("Coincident", 0, 2, 1, 1),
    Sketcher.Constraint("Coincident", 1, 2, 2, 1),
    Sketcher.Constraint("Coincident", 2, 2, 3, 1),
    Sketcher.Constraint("Coincident", 3, 2, 4, 1),
    Sketcher.Constraint("Coincident", 4, 2, 5, 1),
    Sketcher.Constraint("Coincident", 5, 2, 0, 1),
    Sketcher.Constraint("Vertical", 0),
    Sketcher.Constraint("Vertical", 3),
    Sketcher.Constraint("Symmetric", 0, 2, 3, 2, -1, 1),
    Sketcher.Constraint("Symmetric", 1, 2, 4, 2, -1, 1),
    Sketcher.Constraint("PointOnObject", 1, 2, -2),
    Sketcher.Constraint("Parallel", 2, 5),
    Sketcher.Constraint("Horizontal", 0, 2, 2, 2),
    Sketcher.Constraint("Angle", 1, Q("150 deg")),
    Sketcher.Constraint("DistanceX", 2, 2, 0, 2, 9.0),
    Sketcher.Constraint("DistanceY", 0, 1, 0, 2, 5.196152),
])
pad3 = doc.addObject("PartDesign::Pad", "Pad002")
body.addObject(pad3)
pad3.Profile = sketch4
pad3.setExpression("Length", "Params.pad3_length")

# Sketch on XY plane
sketch5 = doc.addObject("Sketcher::SketchObject", "Sketch004")
body.addObject(sketch5)
sketch5.AttachmentSupport = (doc.XY_Plane, [""])
sketch5.MapMode = "FlatFace"
sketch5.AttachmentOffset = App.Placement(App.Vector(0, 0, 47.25), App.Rotation())
sketch5.addGeometry([
    Part.LineSegment(App.Vector(5, -2.886751, 0), App.Vector(5, 2.886751, 0)),  # 0
    Part.LineSegment(App.Vector(5, 2.886751, 0), App.Vector(0, 5.773503, 0)),  # 1
    Part.LineSegment(App.Vector(0, 5.773503, 0), App.Vector(-5, 2.886751, 0)),  # 2
    Part.LineSegment(App.Vector(-5, 2.886751, 0), App.Vector(-5, -2.886751, 0)),  # 3
    Part.LineSegment(App.Vector(-5, -2.886751, 0), App.Vector(0, -5.773503, 0)),  # 4
    Part.LineSegment(App.Vector(0, -5.773503, 0), App.Vector(5, -2.886751, 0)),  # 5
], False)
sketch5.addConstraint([
    Sketcher.Constraint("Coincident", 0, 2, 1, 1),
    Sketcher.Constraint("Coincident", 1, 2, 2, 1),
    Sketcher.Constraint("Coincident", 2, 2, 3, 1),
    Sketcher.Constraint("Coincident", 3, 2, 4, 1),
    Sketcher.Constraint("Coincident", 4, 2, 5, 1),
    Sketcher.Constraint("Coincident", 5, 2, 0, 1),
    Sketcher.Constraint("Vertical", 0),
    Sketcher.Constraint("Vertical", 3),
    Sketcher.Constraint("Symmetric", 0, 2, 3, 2, -1, 1),
    Sketcher.Constraint("Symmetric", 1, 2, 4, 2, -1, 1),
    Sketcher.Constraint("PointOnObject", 1, 2, -2),
    Sketcher.Constraint("Parallel", 2, 5),
    Sketcher.Constraint("Horizontal", 0, 2, 2, 2),
    Sketcher.Constraint("Angle", 1, Q("150 deg")),
    Sketcher.Constraint("DistanceX", -1, 1, 0, 2, 5.0),
    Sketcher.Constraint("DistanceY", 0, 1, 0, 2, 5.773503),
])
pad4 = doc.addObject("PartDesign::Pad", "Pad003")
body.addObject(pad4)
pad4.Profile = sketch5
pad4.setExpression("Length", "Params.pad4_length")
pad4.Midplane = True

# Sketch on YZ plane
sketch6 = doc.addObject("Sketcher::SketchObject", "Sketch005")
body.addObject(sketch6)
sketch6.AttachmentSupport = (doc.YZ_Plane, [""])
sketch6.MapMode = "FlatFace"
sketch6.addGeometry([
    Part.LineSegment(App.Vector(15.400047, -3.699971, 0), App.Vector(-4.600071, -3.699971, 0)),  # 0
    Part.LineSegment(App.Vector(-4.600071, -3.699971, 0), App.Vector(-4.600071, -15.700044, 0)),  # 1
    Part.LineSegment(App.Vector(-4.600071, -15.700044, 0), App.Vector(15.400047, -15.700044, 0)),  # 2
    Part.LineSegment(App.Vector(15.400047, -15.700044, 0), App.Vector(15.400047, -8.199971, 0)),  # 3
    Part.LineSegment(App.Vector(15.400047, -8.199971, 0), App.Vector(9.835873, -8.199971, 0)),  # 4
    Part.ArcOfCircle(Part.Circle(App.Vector(6.899929, -8.8166, 0), App.Vector(0, 0, 1), 3), math.radians(37.267925), math.radians(371.861281)),  # 5
    Part.LineSegment(App.Vector(9.287366, -6.999971, 0), App.Vector(15.400047, -6.999971, 0)),  # 6
    Part.LineSegment(App.Vector(15.400047, -6.999971, 0), App.Vector(15.400047, -3.699971, 0)),  # 7
], False)
sketch6.addConstraint([
    Sketcher.Constraint("Coincident", 0, 2, 1, 1),
    Sketcher.Constraint("Coincident", 1, 2, 2, 1),
    Sketcher.Constraint("Coincident", 2, 2, 3, 1),
    Sketcher.Constraint("Coincident", 3, 2, 4, 1),
    Sketcher.Constraint("Coincident", 4, 2, 5, 2),
    Sketcher.Constraint("Coincident", 5, 1, 6, 1),
    Sketcher.Constraint("Coincident", 6, 2, 7, 1),
    Sketcher.Constraint("Coincident", 7, 2, 0, 1),
    Sketcher.Constraint("Horizontal", 0),
    Sketcher.Constraint("Vertical", 1),
    Sketcher.Constraint("Horizontal", 2),
    Sketcher.Constraint("Vertical", 3),
    Sketcher.Constraint("Horizontal", 4),
    Sketcher.Constraint("Horizontal", 6),
    Sketcher.Constraint("Vertical", 7),
    Sketcher.Constraint("Vertical", 3, 2, 6, 2),
    Sketcher.Constraint("Radius", 5, 3.0),
    Sketcher.Constraint("DistanceY", 7, 1, 7, 2, 3.3),
    Sketcher.Constraint("DistanceX", 0, 2, 5, 3, 11.5),
    Sketcher.Constraint("DistanceY", 3, 2, 0, 2, 4.500001),
    Sketcher.Constraint("DistanceX", 0, 2, 0, 1, 20.000119),
    Sketcher.Constraint("DistanceX", 6, 1, 6, 2, 6.112681),
    Sketcher.Constraint("DistanceY", 5, 3, -1, 1, 8.8166),
    Sketcher.Constraint("DistanceY", 1, 2, 1, 1, 12.000073),
    Sketcher.Constraint("DistanceX", -1, 1, 5, 3, 6.899929),
])
sketch6.setExpression("Constraints[16]", "Params.sketch6_radius")
sketch6.setExpression("Constraints[17]", "Params.sketch6_height")
pad5 = doc.addObject("PartDesign::Pad", "Pad004")
body.addObject(pad5)
pad5.Profile = sketch6
pad5.setExpression("Length", "Params.pad5_length")
pad5.Midplane = True

# Sketch on XY plane
sketch7 = doc.addObject("Sketcher::SketchObject", "Sketch006")
body.addObject(sketch7)
sketch7.AttachmentSupport = (doc.XY_Plane, [""])
sketch7.MapMode = "FlatFace"
sketch7.AttachmentOffset = App.Placement(App.Vector(0, 0, 47.25), App.Rotation())
sketch7.addGeometry(Part.Circle(App.Vector(0, 0, 0), App.Vector(0, 0, 1), 1.25), False)
sketch7.addConstraint([
    Sketcher.Constraint("Coincident", 0, 3, -1, 1),
    Sketcher.Constraint("Diameter", 0, 2.5),
])
sketch7.setExpression("Constraints[1]", "Params.sketch7_diameter")
pocket1 = doc.addObject("PartDesign::Pocket", "Pocket")
body.addObject(pocket1)
pocket1.Profile = sketch7
pocket1.Type = "ThroughAll"
pocket1.Reversed = True

# Sketch on YZ plane
sketch8 = doc.addObject("Sketcher::SketchObject", "Sketch007")
body.addObject(sketch8)
sketch8.AttachmentSupport = (doc.YZ_Plane, [""])
sketch8.MapMode = "FlatFace"
sketch8.addGeometry(Part.Circle(App.Vector(-3.067432, -8.199971, 0), App.Vector(0, 0, 1), 0.7), False)
sketch8.addConstraint([
    Sketcher.Constraint("Diameter", 0, 1.4),
    Sketcher.Constraint("DistanceY", 0, 3, -1, 1, 8.199971),
    Sketcher.Constraint("DistanceX", 0, 3, -1, 1, 3.067432),
])
sketch8.setExpression("Constraints[0]", "Params.sketch8_diameter")
pocket2 = doc.addObject("PartDesign::Pocket", "Pocket001")
body.addObject(pocket2)
pocket2.Profile = sketch8
pocket2.Type = "ThroughAll"
pocket2.Reversed = True

doc.recompute()
